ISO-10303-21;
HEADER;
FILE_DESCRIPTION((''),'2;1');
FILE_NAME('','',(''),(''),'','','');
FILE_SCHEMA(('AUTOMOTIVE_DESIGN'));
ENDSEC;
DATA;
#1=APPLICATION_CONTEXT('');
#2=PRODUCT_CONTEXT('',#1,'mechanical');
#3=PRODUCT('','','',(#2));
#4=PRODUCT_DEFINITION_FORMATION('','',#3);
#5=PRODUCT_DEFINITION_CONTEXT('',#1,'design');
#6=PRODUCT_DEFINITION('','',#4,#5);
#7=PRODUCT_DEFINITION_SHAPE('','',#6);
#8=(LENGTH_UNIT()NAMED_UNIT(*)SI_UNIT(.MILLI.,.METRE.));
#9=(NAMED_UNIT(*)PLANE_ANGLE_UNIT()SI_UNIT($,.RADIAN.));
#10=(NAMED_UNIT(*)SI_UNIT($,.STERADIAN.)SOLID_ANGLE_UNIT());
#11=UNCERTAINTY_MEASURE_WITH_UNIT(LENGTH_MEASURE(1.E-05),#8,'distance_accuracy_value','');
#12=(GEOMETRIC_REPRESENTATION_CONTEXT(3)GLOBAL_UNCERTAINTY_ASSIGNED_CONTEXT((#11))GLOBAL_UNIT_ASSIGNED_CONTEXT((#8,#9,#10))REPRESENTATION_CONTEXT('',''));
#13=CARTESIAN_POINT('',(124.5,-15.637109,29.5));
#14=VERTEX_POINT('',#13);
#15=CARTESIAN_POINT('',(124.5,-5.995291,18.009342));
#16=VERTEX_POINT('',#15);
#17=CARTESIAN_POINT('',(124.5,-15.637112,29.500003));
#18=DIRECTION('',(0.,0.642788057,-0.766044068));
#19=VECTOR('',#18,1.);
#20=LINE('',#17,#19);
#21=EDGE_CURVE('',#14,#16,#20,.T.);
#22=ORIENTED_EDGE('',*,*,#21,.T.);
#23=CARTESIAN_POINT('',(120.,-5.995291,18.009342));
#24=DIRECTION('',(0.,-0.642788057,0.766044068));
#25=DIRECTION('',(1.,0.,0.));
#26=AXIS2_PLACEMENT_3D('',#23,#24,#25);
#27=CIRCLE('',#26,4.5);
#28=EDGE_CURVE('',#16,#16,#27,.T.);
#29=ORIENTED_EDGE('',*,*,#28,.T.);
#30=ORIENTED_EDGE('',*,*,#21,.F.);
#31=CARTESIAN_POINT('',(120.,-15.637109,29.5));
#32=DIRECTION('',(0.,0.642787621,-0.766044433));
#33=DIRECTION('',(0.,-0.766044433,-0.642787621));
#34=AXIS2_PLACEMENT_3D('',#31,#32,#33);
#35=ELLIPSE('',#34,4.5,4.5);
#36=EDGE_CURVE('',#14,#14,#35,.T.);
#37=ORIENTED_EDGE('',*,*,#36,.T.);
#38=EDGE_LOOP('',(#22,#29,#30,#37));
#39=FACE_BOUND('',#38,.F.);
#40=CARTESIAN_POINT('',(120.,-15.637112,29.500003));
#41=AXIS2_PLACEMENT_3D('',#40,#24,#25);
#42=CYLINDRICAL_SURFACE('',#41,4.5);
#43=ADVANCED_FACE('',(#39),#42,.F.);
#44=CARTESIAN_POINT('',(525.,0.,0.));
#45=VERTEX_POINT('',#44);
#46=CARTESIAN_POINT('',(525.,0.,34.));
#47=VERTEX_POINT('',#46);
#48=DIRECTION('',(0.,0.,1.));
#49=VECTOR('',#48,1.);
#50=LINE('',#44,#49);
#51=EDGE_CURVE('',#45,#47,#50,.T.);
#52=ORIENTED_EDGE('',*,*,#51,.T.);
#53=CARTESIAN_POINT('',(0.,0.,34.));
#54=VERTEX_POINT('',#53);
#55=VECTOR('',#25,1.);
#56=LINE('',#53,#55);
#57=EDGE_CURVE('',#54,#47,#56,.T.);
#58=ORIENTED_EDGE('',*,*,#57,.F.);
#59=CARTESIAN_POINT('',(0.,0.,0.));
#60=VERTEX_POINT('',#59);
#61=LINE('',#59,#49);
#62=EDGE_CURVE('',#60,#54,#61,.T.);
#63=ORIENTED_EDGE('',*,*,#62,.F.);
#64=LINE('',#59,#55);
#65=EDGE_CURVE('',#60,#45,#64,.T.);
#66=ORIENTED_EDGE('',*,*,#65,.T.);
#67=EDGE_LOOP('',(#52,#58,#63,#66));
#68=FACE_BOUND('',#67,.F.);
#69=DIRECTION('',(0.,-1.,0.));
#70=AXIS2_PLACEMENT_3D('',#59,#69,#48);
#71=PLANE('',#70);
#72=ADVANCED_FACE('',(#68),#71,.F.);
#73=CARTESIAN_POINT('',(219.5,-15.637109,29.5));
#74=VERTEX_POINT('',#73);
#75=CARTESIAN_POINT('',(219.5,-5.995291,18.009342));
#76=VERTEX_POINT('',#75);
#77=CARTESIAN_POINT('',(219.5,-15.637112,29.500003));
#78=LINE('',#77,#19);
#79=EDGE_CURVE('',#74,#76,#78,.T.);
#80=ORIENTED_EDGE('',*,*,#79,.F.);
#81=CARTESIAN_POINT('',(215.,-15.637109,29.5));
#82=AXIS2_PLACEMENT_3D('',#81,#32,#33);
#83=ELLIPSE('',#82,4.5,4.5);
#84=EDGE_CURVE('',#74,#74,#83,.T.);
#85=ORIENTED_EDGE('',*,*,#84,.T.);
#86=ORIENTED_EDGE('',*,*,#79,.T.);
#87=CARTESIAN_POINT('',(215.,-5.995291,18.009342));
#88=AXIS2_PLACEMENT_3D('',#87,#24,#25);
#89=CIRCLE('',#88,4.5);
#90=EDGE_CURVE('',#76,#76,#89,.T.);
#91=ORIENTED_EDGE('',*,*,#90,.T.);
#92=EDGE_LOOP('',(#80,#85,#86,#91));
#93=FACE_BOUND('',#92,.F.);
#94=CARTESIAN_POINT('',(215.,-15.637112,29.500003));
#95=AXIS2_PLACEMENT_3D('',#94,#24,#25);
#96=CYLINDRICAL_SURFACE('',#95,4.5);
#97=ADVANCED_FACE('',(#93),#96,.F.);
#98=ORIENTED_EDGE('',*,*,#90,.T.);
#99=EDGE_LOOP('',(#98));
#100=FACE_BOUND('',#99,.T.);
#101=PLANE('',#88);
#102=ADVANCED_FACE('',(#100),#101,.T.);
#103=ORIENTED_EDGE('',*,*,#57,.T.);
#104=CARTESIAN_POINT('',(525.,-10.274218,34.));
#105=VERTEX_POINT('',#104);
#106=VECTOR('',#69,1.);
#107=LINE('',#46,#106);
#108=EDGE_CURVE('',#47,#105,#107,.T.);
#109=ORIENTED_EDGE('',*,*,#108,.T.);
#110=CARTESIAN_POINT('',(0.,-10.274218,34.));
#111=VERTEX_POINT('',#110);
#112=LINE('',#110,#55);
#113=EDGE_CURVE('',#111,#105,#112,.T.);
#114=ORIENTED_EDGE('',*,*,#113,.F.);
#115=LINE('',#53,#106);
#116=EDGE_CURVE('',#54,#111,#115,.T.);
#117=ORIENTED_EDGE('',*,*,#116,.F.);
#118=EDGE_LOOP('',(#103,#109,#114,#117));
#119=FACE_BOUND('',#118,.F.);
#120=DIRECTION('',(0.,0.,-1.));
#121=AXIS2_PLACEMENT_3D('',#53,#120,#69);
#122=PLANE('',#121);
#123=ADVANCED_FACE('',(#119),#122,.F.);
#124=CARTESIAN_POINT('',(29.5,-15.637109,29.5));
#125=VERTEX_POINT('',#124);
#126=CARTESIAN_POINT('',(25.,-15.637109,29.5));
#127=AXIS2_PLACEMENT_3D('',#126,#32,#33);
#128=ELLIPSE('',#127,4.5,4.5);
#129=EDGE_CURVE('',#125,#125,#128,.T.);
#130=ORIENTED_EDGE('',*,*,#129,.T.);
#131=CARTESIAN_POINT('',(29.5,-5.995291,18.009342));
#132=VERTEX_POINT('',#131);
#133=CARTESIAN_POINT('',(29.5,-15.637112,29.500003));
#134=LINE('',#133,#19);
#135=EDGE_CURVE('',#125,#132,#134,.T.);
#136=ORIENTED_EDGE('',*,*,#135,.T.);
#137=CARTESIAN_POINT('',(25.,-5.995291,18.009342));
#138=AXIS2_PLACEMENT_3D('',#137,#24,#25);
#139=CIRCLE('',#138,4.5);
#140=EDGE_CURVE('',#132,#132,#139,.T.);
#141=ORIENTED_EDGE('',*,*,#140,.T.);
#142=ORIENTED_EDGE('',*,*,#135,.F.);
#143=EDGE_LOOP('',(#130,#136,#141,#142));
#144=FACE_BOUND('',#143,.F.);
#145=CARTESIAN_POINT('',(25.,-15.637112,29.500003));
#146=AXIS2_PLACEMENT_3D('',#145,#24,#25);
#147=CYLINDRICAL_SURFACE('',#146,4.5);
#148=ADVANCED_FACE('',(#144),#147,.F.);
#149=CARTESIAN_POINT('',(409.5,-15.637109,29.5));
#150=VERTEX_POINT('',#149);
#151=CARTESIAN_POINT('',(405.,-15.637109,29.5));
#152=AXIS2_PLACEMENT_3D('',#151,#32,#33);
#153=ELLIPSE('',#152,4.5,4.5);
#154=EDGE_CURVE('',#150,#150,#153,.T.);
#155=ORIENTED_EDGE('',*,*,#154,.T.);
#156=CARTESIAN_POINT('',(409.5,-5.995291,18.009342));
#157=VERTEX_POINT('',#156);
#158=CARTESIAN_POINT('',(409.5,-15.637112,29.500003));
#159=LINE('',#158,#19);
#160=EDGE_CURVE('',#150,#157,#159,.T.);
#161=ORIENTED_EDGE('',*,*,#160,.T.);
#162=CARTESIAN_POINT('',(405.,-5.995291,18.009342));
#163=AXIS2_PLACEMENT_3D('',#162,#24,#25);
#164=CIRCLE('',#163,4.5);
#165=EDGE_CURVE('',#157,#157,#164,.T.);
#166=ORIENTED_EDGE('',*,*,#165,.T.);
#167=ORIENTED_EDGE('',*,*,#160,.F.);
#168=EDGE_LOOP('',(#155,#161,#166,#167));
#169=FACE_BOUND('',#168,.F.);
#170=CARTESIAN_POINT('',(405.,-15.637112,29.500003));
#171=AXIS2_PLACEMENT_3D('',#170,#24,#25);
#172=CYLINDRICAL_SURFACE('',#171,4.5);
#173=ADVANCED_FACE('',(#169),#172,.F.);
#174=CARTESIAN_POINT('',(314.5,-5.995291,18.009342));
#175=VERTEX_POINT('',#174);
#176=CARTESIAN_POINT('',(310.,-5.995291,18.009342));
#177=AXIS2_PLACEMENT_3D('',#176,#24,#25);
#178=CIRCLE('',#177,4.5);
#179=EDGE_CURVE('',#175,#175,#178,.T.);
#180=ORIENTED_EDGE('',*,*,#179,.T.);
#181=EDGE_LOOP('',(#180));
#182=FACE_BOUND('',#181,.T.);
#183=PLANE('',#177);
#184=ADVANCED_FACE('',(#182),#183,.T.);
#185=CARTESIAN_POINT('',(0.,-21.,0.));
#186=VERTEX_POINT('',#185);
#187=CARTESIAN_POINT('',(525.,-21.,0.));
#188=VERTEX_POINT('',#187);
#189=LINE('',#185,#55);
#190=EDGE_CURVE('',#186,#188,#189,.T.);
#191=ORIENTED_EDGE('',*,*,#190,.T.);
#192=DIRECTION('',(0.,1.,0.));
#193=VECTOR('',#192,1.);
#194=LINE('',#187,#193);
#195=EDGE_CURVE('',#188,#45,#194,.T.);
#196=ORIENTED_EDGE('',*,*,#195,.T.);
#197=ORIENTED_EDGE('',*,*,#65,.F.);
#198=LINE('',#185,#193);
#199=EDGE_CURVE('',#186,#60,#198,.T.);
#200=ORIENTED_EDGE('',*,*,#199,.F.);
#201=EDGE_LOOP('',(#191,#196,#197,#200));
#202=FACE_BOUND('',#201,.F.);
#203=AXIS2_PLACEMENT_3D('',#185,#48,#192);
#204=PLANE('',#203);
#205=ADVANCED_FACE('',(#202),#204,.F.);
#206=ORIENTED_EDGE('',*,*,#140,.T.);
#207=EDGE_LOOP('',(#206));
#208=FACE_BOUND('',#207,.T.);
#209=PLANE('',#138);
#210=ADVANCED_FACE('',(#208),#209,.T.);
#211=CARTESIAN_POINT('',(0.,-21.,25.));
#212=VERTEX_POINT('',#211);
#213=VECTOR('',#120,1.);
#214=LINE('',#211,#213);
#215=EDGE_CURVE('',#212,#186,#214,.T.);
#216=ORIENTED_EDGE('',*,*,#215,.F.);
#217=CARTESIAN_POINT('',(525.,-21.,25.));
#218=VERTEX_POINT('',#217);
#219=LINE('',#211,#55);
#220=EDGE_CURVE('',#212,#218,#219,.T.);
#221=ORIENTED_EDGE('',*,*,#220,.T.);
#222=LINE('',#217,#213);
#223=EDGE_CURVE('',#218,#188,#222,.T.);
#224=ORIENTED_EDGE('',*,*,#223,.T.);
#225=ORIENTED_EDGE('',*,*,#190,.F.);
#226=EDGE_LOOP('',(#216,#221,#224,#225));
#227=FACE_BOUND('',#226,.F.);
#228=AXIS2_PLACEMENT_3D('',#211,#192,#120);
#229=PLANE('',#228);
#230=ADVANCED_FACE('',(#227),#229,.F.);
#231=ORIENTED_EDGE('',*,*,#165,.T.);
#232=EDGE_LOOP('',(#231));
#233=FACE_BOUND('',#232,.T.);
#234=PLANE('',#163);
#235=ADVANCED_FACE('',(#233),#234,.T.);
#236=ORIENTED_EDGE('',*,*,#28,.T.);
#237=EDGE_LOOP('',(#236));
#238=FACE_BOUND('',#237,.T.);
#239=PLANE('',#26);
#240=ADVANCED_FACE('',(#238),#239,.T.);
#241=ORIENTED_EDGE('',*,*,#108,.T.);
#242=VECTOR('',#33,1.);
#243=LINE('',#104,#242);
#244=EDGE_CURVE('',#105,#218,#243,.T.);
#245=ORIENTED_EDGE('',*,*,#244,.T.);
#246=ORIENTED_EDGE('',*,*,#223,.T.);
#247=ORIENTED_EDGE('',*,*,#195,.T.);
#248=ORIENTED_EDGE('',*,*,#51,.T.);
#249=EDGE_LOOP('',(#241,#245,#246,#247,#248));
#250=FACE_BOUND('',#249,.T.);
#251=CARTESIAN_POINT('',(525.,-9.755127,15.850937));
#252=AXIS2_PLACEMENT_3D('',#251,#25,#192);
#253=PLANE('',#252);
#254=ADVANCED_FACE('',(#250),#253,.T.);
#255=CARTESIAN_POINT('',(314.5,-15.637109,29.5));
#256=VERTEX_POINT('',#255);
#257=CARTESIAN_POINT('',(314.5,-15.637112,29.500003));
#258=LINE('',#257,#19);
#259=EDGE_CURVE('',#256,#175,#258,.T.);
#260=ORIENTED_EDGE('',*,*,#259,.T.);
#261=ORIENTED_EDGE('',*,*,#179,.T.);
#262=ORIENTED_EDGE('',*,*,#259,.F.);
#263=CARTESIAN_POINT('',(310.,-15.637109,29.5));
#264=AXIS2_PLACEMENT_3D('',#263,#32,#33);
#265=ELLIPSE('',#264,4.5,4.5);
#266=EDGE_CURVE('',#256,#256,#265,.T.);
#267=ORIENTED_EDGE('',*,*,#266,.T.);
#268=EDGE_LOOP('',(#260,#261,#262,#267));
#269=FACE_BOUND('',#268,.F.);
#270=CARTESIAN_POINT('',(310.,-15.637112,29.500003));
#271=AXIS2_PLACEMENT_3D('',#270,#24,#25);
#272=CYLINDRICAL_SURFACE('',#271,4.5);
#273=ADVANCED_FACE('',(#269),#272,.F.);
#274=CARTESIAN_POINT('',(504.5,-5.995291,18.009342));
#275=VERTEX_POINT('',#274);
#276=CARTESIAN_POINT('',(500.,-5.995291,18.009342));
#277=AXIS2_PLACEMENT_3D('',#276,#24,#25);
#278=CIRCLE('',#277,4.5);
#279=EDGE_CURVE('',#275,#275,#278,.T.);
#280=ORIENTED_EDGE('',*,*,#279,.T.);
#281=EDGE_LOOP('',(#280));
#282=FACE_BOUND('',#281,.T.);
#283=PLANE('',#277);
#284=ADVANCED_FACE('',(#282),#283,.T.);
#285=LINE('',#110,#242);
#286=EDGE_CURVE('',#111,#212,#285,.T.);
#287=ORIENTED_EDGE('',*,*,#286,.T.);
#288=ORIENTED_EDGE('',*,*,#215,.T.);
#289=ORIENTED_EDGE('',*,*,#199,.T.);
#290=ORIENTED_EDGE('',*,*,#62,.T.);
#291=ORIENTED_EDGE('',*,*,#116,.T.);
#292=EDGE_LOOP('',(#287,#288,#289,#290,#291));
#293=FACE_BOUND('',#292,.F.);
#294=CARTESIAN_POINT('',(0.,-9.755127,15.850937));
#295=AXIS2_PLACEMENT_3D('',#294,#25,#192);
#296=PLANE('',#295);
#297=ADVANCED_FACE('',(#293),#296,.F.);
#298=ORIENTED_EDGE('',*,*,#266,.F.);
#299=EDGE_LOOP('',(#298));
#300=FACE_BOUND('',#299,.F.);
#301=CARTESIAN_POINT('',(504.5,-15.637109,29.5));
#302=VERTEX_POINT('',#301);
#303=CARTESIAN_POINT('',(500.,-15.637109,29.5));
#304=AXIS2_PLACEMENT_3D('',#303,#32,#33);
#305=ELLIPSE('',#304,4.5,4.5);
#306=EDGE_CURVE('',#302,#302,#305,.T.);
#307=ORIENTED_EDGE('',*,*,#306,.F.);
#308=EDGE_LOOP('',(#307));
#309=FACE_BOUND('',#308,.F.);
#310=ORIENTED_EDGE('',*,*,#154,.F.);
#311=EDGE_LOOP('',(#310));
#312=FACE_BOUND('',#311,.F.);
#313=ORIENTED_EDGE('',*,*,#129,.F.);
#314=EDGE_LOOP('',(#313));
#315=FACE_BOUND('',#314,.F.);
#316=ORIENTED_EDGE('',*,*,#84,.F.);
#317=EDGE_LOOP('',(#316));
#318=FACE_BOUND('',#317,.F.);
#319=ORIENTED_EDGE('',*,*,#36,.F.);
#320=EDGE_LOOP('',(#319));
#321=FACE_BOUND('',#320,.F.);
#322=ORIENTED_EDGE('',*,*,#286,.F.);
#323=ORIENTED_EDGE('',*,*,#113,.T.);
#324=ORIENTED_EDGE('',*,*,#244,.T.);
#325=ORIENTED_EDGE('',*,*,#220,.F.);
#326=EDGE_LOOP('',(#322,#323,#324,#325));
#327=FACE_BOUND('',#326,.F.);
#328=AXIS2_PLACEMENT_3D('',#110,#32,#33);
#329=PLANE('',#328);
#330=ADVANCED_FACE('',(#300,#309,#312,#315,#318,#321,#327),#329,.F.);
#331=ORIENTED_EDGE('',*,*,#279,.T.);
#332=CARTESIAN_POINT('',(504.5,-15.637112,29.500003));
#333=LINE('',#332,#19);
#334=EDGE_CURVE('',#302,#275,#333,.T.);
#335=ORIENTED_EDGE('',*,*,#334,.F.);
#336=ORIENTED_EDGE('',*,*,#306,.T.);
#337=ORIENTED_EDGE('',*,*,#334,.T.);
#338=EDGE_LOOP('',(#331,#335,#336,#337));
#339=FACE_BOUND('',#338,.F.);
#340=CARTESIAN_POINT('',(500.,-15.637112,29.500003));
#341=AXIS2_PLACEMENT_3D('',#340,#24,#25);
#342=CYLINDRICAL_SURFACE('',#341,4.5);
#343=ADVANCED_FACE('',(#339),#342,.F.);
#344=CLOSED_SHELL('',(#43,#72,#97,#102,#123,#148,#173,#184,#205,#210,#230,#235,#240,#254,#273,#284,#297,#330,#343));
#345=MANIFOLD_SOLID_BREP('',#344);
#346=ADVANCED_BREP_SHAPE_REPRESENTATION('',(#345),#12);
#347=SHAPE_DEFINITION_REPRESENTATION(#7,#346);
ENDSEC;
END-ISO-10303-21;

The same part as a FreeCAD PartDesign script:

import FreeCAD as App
import Part
import Sketcher

V = App.Vector
Q = App.Units.Quantity


def add_polygon(sketch, points):
    """Adds a closed chain of lines whose ends are joined by coincident constraints."""
    first, n = sketch.GeometryCount, len(points)
    for a, b in zip(points, points[1:] + points[:1]):
        sketch.addGeometry(Part.LineSegment(App.Vector(*a, 0), App.Vector(*b, 0)), False)
    for i in range(n):
        sketch.addConstraint(Sketcher.Constraint("Coincident", first + i, 2, first + (i + 1) % n, 1))

doc = App.newDocument("Part")
body = doc.addObject("PartDesign::Body", "Body")

sketch1 = body.newObject("Sketcher::SketchObject", "Sketch")
sketch1.AttachmentSupport = (doc.getObject("YZ_Plane"), [""])
sketch1.MapMode = "FlatFace"
add_polygon(sketch1, [(-21, 0), (0, 0), (0, 34), (-10.274218, 34), (-21, 25)])
sketch1.addConstraint([
    Sketcher.Constraint("Horizontal", 0),
    Sketcher.Constraint("Vertical", 1),
    Sketcher.Constraint("Horizontal", 2),
    Sketcher.Constraint("Vertical", 4),
    Sketcher.Constraint("Coincident", 0, 2, -1, 1),
    Sketcher.Constraint("DistanceX", 0, 1, 0, 2, 21.0),
    Sketcher.Constraint("DistanceY", 1, 1, 1, 2, 34.0),
    Sketcher.Constraint("DistanceY", 4, 2, 4, 1, 25.0),
    Sketcher.Constraint("Angle", 3, Q("-139.999999 deg")),
])
pad1 = body.newObject("PartDesign::Pad", "Pad")
pad1.Profile = sketch1
pad1.Length = 525

sketch2 = body.newObject("Sketcher::SketchObject", "Sketch001")
sketch2.Placement = App.Placement(V(0, -20.986791, 25.011084), App.Rotation(V(1, 0, 0), V(0, 0.766044068, 0.642788057), V(0, -0.642788057, 0.766044068), "ZXY"))
sketch2.addGeometry([
    Part.Circle(V(500, 6.983514, 0), V(0, 0, 1), 4.5),
    Part.Circle(V(405, 6.983514, 0), V(0, 0, 1), 4.5),
    Part.Circle(V(310, 6.983514, 0), V(0, 0, 1), 4.5),
    Part.Circle(V(215, 6.983514, 0), V(0, 0, 1), 4.5),
    Part.Circle(V(120, 6.983514, 0), V(0, 0, 1), 4.5),
    Part.Circle(V(25, 6.983514, 0), V(0, 0, 1), 4.5),
], False)
sketch2.addConstraint([
    Sketcher.Constraint("Equal", 0, 1),
    Sketcher.Constraint("Equal", 1, 2),
    Sketcher.Constraint("Equal", 2, 3),
    Sketcher.Constraint("Equal", 3, 4),
    Sketcher.Constraint("Equal", 4, 5),
    Sketcher.Constraint("Horizontal", 0, 3, 1, 3),
    Sketcher.Constraint("Horizontal", 1, 3, 2, 3),
    Sketcher.Constraint("Horizontal", 2, 3, 3, 3),
    Sketcher.Constraint("Horizontal", 3, 3, 4, 3),
    Sketcher.Constraint("Horizontal", 4, 3, 5, 3),
    Sketcher.Constraint("Diameter", 0, 9.0),
    Sketcher.Constraint("DistanceX", -1, 1, 0, 3, 500.0),
    Sketcher.Constraint("DistanceX", -1, 1, 1, 3, 405.0),
    Sketcher.Constraint("DistanceX", -1, 1, 2, 3, 310.0),
    Sketcher.Constraint("DistanceX", -1, 1, 3, 3, 215.0),
    Sketcher.Constraint("DistanceX", -1, 1, 4, 3, 120.0),
    Sketcher.Constraint("DistanceX", -1, 1, 5, 3, 25.0),
    Sketcher.Constraint("DistanceY", -1, 1, 0, 3, 6.983514),
])
pocket1 = body.newObject("PartDesign::Pocket", "Pocket")
pocket1.Profile = sketch2
pocket1.Length = 15

doc.recompute()
